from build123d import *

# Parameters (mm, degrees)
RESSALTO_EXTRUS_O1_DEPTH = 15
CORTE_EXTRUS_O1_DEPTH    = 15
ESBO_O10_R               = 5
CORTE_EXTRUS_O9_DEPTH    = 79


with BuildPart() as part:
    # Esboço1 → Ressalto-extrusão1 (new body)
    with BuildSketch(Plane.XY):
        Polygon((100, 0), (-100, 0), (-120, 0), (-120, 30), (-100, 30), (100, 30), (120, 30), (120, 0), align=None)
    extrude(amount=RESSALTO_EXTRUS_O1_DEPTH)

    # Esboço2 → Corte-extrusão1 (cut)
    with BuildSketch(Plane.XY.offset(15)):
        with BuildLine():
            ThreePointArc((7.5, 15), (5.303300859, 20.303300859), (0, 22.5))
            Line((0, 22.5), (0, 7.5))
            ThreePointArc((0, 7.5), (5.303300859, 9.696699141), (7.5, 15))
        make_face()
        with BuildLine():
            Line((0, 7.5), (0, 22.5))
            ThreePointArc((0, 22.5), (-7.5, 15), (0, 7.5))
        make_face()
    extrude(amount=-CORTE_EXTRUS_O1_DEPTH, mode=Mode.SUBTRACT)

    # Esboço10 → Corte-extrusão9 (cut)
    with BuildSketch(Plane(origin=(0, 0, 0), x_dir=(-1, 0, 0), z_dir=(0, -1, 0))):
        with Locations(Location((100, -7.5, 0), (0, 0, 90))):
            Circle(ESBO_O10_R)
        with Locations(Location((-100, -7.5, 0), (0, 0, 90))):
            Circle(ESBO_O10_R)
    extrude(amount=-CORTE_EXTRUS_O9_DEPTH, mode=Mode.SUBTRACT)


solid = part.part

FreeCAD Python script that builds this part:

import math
import FreeCAD as App
import Part
import Sketcher

V = App.Vector
Q = App.Units.Quantity

doc = App.newDocument("Part")
body = doc.addObject("PartDesign::Body", "Body")

sketch1 = body.newObject("Sketcher::SketchObject", "Sketch")
sketch1.AttachmentSupport = (doc.getObject("XY_Plane"), [""])
sketch1.MapMode = "FlatFace"
sketch1.addGeometry([
    Part.LineSegment(V(-120, 0, 0), V(120, 0, 0)),
    Part.LineSegment(V(120, 0, 0), V(120, 30, 0)),
    Part.LineSegment(V(120, 30, 0), V(-120, 30, 0)),
    Part.LineSegment(V(-120, 30, 0), V(-120, 0, 0)),
], False)
sketch1.addConstraint([
    Sketcher.Constraint("Coincident", 0, 2, 1, 1),
    Sketcher.Constraint("Coincident", 1, 2, 2, 1),
    Sketcher.Constraint("Coincident", 2, 2, 3, 1),
    Sketcher.Constraint("Coincident", 3, 2, 0, 1),
    Sketcher.Constraint("Horizontal", 0),
    Sketcher.Constraint("Vertical", 1),
    Sketcher.Constraint("Horizontal", 2),
    Sketcher.Constraint("Vertical", 3),
    Sketcher.Constraint("Symmetric", 0, 2, 3, 2, -1, 1),
    Sketcher.Constraint("DistanceX", 0, 1, 0, 2, Q("240 mm")),
    Sketcher.Constraint("DistanceY", 1, 1, 1, 2, Q("30 mm")),
])
pad1 = body.newObject("PartDesign::Pad", "Pad")
pad1.Profile = sketch1
pad1.Length = 15

sketch2 = body.newObject("Sketcher::SketchObject", "Sketch001")
sketch2.AttachmentSupport = (doc.getObject("XY_Plane"), [""])
sketch2.MapMode = "FlatFace"
sketch2.AttachmentOffset = App.Placement(V(0, 0, 15), App.Rotation())
sketch2.addGeometry([
    Part.ArcOfCircle(Part.Circle(V(0, 15, 0), V(0, 0, 1), 7.5), math.radians(0), math.radians(90)),
    Part.ArcOfCircle(Part.Circle(V(0, 15, 0), V(0, 0, 1), 7.5), math.radians(90), math.radians(270)),
    Part.ArcOfCircle(Part.Circle(V(0, 15, 0), V(0, 0, 1), 7.5), math.radians(-90), math.radians(0)),
], False)
sketch2.addConstraint([
    Sketcher.Constraint("Tangent", 0, 2, 1, 1),
    Sketcher.Constraint("Tangent", 1, 2, 2, 1),
    Sketcher.Constraint("Tangent", 2, 2, 0, 1),
    Sketcher.Constraint("PointOnObject", 0, 3, -2),
    Sketcher.Constraint("PointOnObject", 0, 2, -2),
    Sketcher.Constraint("PointOnObject", 1, 2, -2),
    Sketcher.Constraint("Horizontal", 1, 3, 2, 2),
    Sketcher.Constraint("Radius", 0, Q("7.5 mm")),
    Sketcher.Constraint("DistanceY", -1, 1, 0, 3, Q("15 mm")),
])
pocket1 = body.newObject("PartDesign::Pocket", "Pocket")
pocket1.Profile = sketch2
pocket1.Length = 15

sketch3 = body.newObject("Sketcher::SketchObject", "Sketch002")
sketch3.AttachmentSupport = (doc.getObject("XZ_Plane"), [""])
sketch3.MapMode = "FlatFace"
sketch3.addGeometry([
    Part.Circle(V(-100, 7.5, 0), V(0, 0, 1), 5),
    Part.Circle(V(100, 7.5, 0), V(0, 0, 1), 5),
], False)
sketch3.addConstraint([
    Sketcher.Constraint("Equal", 0, 1),
    Sketcher.Constraint("Symmetric", 0, 3, 1, 3, -2),
    Sketcher.Constraint("Diameter", 0, Q("10 mm")),
    Sketcher.Constraint("DistanceX", 0, 3, -1, 1, Q("100 mm")),
    Sketcher.Constraint("DistanceY", -1, 1, 0, 3, Q("7.5 mm")),
])
pocket2 = body.newObject("PartDesign::Pocket", "Pocket001")
pocket2.Profile = sketch3
pocket2.Length = 79

doc.recompute()
